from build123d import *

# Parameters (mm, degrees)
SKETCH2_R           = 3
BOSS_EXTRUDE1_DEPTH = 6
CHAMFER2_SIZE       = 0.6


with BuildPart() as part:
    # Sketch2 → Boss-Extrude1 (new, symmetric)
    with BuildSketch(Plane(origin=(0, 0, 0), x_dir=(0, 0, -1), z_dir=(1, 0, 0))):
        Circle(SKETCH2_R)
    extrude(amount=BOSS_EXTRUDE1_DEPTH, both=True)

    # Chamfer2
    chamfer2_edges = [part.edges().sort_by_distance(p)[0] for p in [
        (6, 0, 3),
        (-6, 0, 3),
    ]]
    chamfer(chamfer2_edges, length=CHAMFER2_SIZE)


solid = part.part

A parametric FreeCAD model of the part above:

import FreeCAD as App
import Part
import Sketcher
from FreeCAD import Vector


def edges_at(feature, points):
    """Names of the edges that pass closest to the given points."""
    edges = feature.Shape.Edges
    near = lambda p: min(range(len(edges)), key=lambda i: edges[i].distToShape(Part.Vertex(*p))[0])
    return sorted({f"Edge{near(p) + 1}" for p in points})

doc = App.newDocument("Part")
body = doc.addObject("PartDesign::Body", "Body")

sketch1 = doc.addObject("Sketcher::SketchObject", "Sketch")
body.addObject(sketch1)
sketch1.AttachmentSupport = (doc.YZ_Plane, [""])
sketch1.MapMode = "FlatFace"
sketch1.addGeometry(Part.Circle(Vector(0, 0, 0), Vector(0, 0, 1), 3), False)
sketch1.addConstraint([
    Sketcher.Constraint("Coincident", 0, 3, -1, 1),
    Sketcher.Constraint("Diameter", 0, 6.0),
])
pad1 = doc.addObject("PartDesign::Pad", "Pad")
body.addObject(pad1)
pad1.Profile = sketch1
pad1.Length = 12
pad1.Midplane = True
doc.recompute()

chamfer = doc.addObject("PartDesign::Chamfer", "Chamfer")
body.addObject(chamfer)
chamfer.Base = (pad1, edges_at(pad1, [(6, 0, 3), (-6, 0, 3)]))
chamfer.Size = 0.6

doc.recompute()
